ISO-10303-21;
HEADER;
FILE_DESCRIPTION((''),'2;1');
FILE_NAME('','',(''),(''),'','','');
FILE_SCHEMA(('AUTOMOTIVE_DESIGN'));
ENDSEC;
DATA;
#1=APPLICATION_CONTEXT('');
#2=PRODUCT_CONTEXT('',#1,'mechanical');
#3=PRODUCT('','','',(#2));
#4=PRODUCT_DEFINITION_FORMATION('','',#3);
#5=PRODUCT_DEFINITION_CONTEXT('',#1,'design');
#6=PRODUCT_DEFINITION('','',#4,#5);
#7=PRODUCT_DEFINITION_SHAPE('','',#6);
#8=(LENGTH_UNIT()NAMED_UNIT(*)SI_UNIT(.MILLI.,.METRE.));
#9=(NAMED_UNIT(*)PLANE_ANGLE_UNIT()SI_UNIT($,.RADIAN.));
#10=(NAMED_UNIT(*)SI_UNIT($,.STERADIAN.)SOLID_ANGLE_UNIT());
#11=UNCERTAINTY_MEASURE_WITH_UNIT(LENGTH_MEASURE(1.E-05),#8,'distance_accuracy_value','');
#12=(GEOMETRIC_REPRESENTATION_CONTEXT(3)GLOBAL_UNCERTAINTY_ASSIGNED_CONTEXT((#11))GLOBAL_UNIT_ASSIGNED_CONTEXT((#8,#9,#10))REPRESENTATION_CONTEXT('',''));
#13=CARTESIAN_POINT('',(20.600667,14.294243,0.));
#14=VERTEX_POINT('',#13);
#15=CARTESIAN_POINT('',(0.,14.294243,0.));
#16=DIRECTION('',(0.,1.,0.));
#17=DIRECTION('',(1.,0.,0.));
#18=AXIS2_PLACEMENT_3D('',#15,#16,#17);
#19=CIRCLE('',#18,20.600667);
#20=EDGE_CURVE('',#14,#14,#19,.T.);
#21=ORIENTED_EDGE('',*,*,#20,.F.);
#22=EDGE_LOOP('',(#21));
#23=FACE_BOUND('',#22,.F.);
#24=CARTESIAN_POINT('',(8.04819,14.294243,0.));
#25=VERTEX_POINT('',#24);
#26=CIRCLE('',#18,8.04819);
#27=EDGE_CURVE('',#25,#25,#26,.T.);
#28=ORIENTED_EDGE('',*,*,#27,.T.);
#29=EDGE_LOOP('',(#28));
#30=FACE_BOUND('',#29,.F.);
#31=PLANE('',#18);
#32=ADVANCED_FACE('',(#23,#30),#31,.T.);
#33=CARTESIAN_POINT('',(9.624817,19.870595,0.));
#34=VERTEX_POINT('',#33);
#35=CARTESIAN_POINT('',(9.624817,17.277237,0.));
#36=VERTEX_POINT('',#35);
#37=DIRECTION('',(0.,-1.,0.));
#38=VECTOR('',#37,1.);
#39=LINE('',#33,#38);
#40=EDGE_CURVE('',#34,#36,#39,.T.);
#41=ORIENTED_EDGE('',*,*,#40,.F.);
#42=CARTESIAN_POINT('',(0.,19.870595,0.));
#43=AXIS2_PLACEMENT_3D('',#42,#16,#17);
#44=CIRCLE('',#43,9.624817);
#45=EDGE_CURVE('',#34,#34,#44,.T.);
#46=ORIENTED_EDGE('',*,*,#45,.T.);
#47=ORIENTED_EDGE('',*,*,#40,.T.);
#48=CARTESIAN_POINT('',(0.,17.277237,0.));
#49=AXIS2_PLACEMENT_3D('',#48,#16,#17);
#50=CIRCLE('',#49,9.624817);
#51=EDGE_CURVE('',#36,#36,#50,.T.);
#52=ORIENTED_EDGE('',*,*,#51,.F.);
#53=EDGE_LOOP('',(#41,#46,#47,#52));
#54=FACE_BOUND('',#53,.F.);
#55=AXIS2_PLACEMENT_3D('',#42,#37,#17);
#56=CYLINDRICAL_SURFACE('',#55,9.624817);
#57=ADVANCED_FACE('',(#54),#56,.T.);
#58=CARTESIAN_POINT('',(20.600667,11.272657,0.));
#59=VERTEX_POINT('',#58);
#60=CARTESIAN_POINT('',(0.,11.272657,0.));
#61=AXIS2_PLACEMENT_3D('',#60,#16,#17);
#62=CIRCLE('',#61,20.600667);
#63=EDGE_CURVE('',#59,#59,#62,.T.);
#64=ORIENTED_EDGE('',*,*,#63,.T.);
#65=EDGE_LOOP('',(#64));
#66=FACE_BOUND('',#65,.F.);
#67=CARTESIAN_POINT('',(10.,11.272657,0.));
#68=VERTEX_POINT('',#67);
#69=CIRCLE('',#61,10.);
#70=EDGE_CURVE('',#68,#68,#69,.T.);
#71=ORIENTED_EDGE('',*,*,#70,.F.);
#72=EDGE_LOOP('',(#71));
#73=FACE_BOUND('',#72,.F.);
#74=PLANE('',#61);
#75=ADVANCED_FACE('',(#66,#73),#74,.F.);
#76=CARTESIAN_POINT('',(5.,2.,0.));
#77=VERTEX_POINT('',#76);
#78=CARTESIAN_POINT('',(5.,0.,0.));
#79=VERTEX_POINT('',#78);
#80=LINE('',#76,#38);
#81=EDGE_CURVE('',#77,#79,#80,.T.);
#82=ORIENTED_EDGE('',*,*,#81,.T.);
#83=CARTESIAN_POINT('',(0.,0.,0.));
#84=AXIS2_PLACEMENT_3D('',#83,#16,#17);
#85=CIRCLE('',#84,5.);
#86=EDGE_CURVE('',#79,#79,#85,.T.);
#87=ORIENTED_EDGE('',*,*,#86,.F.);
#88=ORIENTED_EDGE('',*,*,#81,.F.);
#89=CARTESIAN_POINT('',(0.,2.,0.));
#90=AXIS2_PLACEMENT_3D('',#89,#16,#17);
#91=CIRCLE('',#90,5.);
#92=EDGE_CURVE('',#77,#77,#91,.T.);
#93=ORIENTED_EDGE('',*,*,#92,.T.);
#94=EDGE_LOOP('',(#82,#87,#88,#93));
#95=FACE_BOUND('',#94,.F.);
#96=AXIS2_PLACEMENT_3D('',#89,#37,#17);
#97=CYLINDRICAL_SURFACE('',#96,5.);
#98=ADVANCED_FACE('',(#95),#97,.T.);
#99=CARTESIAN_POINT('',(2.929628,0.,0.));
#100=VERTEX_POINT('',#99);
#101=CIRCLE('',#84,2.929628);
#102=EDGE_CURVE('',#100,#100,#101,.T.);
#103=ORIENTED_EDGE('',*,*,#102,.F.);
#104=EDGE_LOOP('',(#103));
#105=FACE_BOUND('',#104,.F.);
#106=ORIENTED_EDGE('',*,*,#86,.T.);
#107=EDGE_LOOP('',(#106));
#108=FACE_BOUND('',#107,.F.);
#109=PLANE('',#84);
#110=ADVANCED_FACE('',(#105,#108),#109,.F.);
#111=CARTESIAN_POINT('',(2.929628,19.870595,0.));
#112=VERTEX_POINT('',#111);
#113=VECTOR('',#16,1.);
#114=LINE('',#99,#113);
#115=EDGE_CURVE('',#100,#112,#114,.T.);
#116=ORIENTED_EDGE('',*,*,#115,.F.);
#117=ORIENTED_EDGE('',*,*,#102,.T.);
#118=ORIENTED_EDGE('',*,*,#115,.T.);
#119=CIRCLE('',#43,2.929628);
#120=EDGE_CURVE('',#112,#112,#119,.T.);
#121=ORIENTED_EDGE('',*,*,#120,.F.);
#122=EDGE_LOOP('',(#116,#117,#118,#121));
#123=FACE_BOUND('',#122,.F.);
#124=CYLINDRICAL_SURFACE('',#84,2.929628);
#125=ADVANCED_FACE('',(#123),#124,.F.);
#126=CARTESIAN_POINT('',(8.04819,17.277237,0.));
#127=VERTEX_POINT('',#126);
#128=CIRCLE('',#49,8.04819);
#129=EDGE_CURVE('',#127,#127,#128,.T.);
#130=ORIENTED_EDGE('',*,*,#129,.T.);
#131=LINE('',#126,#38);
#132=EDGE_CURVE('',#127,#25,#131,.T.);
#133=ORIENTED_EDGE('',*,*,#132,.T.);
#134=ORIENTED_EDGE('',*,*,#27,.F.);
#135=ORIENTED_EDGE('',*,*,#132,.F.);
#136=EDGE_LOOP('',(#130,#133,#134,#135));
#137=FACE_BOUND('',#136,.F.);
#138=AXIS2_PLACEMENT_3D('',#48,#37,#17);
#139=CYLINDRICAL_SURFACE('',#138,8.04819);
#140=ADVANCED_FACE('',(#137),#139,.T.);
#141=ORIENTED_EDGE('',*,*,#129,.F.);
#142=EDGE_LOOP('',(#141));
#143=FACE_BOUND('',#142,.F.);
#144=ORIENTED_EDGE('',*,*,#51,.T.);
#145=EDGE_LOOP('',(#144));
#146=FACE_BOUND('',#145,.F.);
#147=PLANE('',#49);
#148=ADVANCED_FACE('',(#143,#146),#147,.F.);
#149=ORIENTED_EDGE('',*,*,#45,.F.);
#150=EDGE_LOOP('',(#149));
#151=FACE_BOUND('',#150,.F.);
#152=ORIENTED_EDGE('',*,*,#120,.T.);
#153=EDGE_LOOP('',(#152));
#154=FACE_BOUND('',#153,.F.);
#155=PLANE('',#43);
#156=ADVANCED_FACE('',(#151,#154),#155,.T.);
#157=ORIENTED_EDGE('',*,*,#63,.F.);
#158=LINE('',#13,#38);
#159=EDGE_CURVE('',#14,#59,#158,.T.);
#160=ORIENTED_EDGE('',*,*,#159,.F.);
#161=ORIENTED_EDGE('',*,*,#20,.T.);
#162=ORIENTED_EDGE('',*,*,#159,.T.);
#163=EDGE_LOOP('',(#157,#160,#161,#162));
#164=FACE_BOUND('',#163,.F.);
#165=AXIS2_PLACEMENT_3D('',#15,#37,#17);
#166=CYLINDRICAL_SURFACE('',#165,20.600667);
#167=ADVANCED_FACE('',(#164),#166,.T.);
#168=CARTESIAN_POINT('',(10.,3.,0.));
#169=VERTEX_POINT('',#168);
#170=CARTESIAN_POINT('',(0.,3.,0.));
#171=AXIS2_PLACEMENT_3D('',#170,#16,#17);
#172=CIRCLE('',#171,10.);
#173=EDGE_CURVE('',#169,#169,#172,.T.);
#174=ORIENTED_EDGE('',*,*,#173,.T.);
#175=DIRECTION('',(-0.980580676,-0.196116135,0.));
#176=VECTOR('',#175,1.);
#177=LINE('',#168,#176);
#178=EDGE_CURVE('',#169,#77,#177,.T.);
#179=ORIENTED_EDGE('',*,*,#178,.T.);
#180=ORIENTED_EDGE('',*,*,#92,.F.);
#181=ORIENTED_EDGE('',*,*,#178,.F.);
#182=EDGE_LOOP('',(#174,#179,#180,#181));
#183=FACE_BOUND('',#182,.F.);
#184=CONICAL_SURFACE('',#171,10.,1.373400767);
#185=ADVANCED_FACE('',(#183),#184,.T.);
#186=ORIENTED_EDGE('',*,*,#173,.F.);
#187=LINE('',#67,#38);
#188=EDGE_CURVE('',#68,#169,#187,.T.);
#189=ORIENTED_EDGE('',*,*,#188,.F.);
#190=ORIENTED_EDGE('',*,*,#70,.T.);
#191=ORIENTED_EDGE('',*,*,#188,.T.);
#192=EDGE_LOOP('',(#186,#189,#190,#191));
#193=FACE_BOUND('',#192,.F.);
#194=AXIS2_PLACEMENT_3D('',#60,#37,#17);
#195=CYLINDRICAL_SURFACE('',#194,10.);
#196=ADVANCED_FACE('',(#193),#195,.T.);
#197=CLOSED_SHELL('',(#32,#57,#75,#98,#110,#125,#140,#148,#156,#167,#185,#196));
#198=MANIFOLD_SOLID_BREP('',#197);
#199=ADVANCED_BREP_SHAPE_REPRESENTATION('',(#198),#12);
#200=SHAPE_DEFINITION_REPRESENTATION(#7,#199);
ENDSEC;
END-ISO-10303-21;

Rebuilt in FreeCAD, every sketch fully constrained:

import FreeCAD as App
import Part
import Sketcher
Q = App.Units.Quantity


def add_polygon(sketch, points):
    """Adds a closed chain of lines whose ends are joined by coincident constraints."""
    first, n = sketch.GeometryCount, len(points)
    for a, b in zip(points, points[1:] + points[:1]):
        sketch.addGeometry(Part.LineSegment(App.Vector(*a, 0), App.Vector(*b, 0)), False)
    for i in range(n):
        sketch.addConstraint(Sketcher.Constraint("Coincident", first + i, 2, first + (i + 1) % n, 1))

doc = App.newDocument("Part")
body = doc.addObject("PartDesign::Body", "Body")

# Sketch on XY plane
sketch1 = doc.addObject("Sketcher::SketchObject", "Sketch")
body.addObject(sketch1)
sketch1.AttachmentSupport = (doc.XY_Plane, [""])
sketch1.MapMode = "FlatFace"
add_polygon(sketch1, [(2.9, 19.9), (2.9, 0), (5, 0), (5, 2), (10, 3), (10, 11.3), (20.6, 11.3), (20.6, 14.3), (8, 14.3), (8, 17.3), (9.6, 17.3), (9.6, 19.9)])  # lines 0-11
sketch1.addConstraint(Sketcher.Constraint("Vertical", 0))
sketch1.addConstraint(Sketcher.Constraint("Horizontal", 1))
sketch1.addConstraint(Sketcher.Constraint("Vertical", 2))
sketch1.addConstraint(Sketcher.Constraint("Vertical", 4))
sketch1.addConstraint(Sketcher.Constraint("Horizontal", 5))
sketch1.addConstraint(Sketcher.Constraint("Vertical", 6))
sketch1.addConstraint(Sketcher.Constraint("Horizontal", 7))
sketch1.addConstraint(Sketcher.Constraint("Vertical", 8))
sketch1.addConstraint(Sketcher.Constraint("Horizontal", 9))
sketch1.addConstraint(Sketcher.Constraint("Vertical", 10))
sketch1.addConstraint(Sketcher.Constraint("Horizontal", 11))
sketch1.addConstraint(Sketcher.Constraint("PointOnObject", 0, 2, -1))
sketch1.addConstraint(Sketcher.Constraint("DistanceY", 2, 1, 2, 2, Q("2 mm")))
sketch1.addConstraint(Sketcher.Constraint("DistanceX", -1, 1, 1, 2, Q("5 mm")))
sketch1.addConstraint(Sketcher.Constraint("DistanceX", -1, 1, 3, 2, Q("10 mm")))
sketch1.addConstraint(Sketcher.Constraint("DistanceY", -1, 1, 3, 2, Q("3 mm")))
sketch1.addConstraint(Sketcher.Constraint("DistanceX", 1, 1, 1, 2, Q("2.070372 mm")))
sketch1.addConstraint(Sketcher.Constraint("DistanceX", 11, 2, 11, 1, Q("6.695189 mm")))
sketch1.addConstraint(Sketcher.Constraint("DistanceX", 5, 1, 5, 2, Q("10.600667 mm")))
sketch1.addConstraint(Sketcher.Constraint("DistanceX", 7, 2, 7, 1, Q("12.552477 mm")))
sketch1.addConstraint(Sketcher.Constraint("DistanceY", 0, 2, 0, 1, Q("19.870595 mm")))
sketch1.addConstraint(Sketcher.Constraint("DistanceY", 4, 1, 4, 2, Q("8.272657 mm")))
sketch1.addConstraint(Sketcher.Constraint("DistanceY", 6, 1, 6, 2, Q("3.021586 mm")))
sketch1.addConstraint(Sketcher.Constraint("DistanceY", 8, 1, 8, 2, Q("2.982994 mm")))
revolution = doc.addObject("PartDesign::Revolution", "Revolution")
body.addObject(revolution)
revolution.Profile = sketch1
revolution.ReferenceAxis = (sketch1, ["V_Axis"])
revolution.Angle = 360

doc.recompute()
